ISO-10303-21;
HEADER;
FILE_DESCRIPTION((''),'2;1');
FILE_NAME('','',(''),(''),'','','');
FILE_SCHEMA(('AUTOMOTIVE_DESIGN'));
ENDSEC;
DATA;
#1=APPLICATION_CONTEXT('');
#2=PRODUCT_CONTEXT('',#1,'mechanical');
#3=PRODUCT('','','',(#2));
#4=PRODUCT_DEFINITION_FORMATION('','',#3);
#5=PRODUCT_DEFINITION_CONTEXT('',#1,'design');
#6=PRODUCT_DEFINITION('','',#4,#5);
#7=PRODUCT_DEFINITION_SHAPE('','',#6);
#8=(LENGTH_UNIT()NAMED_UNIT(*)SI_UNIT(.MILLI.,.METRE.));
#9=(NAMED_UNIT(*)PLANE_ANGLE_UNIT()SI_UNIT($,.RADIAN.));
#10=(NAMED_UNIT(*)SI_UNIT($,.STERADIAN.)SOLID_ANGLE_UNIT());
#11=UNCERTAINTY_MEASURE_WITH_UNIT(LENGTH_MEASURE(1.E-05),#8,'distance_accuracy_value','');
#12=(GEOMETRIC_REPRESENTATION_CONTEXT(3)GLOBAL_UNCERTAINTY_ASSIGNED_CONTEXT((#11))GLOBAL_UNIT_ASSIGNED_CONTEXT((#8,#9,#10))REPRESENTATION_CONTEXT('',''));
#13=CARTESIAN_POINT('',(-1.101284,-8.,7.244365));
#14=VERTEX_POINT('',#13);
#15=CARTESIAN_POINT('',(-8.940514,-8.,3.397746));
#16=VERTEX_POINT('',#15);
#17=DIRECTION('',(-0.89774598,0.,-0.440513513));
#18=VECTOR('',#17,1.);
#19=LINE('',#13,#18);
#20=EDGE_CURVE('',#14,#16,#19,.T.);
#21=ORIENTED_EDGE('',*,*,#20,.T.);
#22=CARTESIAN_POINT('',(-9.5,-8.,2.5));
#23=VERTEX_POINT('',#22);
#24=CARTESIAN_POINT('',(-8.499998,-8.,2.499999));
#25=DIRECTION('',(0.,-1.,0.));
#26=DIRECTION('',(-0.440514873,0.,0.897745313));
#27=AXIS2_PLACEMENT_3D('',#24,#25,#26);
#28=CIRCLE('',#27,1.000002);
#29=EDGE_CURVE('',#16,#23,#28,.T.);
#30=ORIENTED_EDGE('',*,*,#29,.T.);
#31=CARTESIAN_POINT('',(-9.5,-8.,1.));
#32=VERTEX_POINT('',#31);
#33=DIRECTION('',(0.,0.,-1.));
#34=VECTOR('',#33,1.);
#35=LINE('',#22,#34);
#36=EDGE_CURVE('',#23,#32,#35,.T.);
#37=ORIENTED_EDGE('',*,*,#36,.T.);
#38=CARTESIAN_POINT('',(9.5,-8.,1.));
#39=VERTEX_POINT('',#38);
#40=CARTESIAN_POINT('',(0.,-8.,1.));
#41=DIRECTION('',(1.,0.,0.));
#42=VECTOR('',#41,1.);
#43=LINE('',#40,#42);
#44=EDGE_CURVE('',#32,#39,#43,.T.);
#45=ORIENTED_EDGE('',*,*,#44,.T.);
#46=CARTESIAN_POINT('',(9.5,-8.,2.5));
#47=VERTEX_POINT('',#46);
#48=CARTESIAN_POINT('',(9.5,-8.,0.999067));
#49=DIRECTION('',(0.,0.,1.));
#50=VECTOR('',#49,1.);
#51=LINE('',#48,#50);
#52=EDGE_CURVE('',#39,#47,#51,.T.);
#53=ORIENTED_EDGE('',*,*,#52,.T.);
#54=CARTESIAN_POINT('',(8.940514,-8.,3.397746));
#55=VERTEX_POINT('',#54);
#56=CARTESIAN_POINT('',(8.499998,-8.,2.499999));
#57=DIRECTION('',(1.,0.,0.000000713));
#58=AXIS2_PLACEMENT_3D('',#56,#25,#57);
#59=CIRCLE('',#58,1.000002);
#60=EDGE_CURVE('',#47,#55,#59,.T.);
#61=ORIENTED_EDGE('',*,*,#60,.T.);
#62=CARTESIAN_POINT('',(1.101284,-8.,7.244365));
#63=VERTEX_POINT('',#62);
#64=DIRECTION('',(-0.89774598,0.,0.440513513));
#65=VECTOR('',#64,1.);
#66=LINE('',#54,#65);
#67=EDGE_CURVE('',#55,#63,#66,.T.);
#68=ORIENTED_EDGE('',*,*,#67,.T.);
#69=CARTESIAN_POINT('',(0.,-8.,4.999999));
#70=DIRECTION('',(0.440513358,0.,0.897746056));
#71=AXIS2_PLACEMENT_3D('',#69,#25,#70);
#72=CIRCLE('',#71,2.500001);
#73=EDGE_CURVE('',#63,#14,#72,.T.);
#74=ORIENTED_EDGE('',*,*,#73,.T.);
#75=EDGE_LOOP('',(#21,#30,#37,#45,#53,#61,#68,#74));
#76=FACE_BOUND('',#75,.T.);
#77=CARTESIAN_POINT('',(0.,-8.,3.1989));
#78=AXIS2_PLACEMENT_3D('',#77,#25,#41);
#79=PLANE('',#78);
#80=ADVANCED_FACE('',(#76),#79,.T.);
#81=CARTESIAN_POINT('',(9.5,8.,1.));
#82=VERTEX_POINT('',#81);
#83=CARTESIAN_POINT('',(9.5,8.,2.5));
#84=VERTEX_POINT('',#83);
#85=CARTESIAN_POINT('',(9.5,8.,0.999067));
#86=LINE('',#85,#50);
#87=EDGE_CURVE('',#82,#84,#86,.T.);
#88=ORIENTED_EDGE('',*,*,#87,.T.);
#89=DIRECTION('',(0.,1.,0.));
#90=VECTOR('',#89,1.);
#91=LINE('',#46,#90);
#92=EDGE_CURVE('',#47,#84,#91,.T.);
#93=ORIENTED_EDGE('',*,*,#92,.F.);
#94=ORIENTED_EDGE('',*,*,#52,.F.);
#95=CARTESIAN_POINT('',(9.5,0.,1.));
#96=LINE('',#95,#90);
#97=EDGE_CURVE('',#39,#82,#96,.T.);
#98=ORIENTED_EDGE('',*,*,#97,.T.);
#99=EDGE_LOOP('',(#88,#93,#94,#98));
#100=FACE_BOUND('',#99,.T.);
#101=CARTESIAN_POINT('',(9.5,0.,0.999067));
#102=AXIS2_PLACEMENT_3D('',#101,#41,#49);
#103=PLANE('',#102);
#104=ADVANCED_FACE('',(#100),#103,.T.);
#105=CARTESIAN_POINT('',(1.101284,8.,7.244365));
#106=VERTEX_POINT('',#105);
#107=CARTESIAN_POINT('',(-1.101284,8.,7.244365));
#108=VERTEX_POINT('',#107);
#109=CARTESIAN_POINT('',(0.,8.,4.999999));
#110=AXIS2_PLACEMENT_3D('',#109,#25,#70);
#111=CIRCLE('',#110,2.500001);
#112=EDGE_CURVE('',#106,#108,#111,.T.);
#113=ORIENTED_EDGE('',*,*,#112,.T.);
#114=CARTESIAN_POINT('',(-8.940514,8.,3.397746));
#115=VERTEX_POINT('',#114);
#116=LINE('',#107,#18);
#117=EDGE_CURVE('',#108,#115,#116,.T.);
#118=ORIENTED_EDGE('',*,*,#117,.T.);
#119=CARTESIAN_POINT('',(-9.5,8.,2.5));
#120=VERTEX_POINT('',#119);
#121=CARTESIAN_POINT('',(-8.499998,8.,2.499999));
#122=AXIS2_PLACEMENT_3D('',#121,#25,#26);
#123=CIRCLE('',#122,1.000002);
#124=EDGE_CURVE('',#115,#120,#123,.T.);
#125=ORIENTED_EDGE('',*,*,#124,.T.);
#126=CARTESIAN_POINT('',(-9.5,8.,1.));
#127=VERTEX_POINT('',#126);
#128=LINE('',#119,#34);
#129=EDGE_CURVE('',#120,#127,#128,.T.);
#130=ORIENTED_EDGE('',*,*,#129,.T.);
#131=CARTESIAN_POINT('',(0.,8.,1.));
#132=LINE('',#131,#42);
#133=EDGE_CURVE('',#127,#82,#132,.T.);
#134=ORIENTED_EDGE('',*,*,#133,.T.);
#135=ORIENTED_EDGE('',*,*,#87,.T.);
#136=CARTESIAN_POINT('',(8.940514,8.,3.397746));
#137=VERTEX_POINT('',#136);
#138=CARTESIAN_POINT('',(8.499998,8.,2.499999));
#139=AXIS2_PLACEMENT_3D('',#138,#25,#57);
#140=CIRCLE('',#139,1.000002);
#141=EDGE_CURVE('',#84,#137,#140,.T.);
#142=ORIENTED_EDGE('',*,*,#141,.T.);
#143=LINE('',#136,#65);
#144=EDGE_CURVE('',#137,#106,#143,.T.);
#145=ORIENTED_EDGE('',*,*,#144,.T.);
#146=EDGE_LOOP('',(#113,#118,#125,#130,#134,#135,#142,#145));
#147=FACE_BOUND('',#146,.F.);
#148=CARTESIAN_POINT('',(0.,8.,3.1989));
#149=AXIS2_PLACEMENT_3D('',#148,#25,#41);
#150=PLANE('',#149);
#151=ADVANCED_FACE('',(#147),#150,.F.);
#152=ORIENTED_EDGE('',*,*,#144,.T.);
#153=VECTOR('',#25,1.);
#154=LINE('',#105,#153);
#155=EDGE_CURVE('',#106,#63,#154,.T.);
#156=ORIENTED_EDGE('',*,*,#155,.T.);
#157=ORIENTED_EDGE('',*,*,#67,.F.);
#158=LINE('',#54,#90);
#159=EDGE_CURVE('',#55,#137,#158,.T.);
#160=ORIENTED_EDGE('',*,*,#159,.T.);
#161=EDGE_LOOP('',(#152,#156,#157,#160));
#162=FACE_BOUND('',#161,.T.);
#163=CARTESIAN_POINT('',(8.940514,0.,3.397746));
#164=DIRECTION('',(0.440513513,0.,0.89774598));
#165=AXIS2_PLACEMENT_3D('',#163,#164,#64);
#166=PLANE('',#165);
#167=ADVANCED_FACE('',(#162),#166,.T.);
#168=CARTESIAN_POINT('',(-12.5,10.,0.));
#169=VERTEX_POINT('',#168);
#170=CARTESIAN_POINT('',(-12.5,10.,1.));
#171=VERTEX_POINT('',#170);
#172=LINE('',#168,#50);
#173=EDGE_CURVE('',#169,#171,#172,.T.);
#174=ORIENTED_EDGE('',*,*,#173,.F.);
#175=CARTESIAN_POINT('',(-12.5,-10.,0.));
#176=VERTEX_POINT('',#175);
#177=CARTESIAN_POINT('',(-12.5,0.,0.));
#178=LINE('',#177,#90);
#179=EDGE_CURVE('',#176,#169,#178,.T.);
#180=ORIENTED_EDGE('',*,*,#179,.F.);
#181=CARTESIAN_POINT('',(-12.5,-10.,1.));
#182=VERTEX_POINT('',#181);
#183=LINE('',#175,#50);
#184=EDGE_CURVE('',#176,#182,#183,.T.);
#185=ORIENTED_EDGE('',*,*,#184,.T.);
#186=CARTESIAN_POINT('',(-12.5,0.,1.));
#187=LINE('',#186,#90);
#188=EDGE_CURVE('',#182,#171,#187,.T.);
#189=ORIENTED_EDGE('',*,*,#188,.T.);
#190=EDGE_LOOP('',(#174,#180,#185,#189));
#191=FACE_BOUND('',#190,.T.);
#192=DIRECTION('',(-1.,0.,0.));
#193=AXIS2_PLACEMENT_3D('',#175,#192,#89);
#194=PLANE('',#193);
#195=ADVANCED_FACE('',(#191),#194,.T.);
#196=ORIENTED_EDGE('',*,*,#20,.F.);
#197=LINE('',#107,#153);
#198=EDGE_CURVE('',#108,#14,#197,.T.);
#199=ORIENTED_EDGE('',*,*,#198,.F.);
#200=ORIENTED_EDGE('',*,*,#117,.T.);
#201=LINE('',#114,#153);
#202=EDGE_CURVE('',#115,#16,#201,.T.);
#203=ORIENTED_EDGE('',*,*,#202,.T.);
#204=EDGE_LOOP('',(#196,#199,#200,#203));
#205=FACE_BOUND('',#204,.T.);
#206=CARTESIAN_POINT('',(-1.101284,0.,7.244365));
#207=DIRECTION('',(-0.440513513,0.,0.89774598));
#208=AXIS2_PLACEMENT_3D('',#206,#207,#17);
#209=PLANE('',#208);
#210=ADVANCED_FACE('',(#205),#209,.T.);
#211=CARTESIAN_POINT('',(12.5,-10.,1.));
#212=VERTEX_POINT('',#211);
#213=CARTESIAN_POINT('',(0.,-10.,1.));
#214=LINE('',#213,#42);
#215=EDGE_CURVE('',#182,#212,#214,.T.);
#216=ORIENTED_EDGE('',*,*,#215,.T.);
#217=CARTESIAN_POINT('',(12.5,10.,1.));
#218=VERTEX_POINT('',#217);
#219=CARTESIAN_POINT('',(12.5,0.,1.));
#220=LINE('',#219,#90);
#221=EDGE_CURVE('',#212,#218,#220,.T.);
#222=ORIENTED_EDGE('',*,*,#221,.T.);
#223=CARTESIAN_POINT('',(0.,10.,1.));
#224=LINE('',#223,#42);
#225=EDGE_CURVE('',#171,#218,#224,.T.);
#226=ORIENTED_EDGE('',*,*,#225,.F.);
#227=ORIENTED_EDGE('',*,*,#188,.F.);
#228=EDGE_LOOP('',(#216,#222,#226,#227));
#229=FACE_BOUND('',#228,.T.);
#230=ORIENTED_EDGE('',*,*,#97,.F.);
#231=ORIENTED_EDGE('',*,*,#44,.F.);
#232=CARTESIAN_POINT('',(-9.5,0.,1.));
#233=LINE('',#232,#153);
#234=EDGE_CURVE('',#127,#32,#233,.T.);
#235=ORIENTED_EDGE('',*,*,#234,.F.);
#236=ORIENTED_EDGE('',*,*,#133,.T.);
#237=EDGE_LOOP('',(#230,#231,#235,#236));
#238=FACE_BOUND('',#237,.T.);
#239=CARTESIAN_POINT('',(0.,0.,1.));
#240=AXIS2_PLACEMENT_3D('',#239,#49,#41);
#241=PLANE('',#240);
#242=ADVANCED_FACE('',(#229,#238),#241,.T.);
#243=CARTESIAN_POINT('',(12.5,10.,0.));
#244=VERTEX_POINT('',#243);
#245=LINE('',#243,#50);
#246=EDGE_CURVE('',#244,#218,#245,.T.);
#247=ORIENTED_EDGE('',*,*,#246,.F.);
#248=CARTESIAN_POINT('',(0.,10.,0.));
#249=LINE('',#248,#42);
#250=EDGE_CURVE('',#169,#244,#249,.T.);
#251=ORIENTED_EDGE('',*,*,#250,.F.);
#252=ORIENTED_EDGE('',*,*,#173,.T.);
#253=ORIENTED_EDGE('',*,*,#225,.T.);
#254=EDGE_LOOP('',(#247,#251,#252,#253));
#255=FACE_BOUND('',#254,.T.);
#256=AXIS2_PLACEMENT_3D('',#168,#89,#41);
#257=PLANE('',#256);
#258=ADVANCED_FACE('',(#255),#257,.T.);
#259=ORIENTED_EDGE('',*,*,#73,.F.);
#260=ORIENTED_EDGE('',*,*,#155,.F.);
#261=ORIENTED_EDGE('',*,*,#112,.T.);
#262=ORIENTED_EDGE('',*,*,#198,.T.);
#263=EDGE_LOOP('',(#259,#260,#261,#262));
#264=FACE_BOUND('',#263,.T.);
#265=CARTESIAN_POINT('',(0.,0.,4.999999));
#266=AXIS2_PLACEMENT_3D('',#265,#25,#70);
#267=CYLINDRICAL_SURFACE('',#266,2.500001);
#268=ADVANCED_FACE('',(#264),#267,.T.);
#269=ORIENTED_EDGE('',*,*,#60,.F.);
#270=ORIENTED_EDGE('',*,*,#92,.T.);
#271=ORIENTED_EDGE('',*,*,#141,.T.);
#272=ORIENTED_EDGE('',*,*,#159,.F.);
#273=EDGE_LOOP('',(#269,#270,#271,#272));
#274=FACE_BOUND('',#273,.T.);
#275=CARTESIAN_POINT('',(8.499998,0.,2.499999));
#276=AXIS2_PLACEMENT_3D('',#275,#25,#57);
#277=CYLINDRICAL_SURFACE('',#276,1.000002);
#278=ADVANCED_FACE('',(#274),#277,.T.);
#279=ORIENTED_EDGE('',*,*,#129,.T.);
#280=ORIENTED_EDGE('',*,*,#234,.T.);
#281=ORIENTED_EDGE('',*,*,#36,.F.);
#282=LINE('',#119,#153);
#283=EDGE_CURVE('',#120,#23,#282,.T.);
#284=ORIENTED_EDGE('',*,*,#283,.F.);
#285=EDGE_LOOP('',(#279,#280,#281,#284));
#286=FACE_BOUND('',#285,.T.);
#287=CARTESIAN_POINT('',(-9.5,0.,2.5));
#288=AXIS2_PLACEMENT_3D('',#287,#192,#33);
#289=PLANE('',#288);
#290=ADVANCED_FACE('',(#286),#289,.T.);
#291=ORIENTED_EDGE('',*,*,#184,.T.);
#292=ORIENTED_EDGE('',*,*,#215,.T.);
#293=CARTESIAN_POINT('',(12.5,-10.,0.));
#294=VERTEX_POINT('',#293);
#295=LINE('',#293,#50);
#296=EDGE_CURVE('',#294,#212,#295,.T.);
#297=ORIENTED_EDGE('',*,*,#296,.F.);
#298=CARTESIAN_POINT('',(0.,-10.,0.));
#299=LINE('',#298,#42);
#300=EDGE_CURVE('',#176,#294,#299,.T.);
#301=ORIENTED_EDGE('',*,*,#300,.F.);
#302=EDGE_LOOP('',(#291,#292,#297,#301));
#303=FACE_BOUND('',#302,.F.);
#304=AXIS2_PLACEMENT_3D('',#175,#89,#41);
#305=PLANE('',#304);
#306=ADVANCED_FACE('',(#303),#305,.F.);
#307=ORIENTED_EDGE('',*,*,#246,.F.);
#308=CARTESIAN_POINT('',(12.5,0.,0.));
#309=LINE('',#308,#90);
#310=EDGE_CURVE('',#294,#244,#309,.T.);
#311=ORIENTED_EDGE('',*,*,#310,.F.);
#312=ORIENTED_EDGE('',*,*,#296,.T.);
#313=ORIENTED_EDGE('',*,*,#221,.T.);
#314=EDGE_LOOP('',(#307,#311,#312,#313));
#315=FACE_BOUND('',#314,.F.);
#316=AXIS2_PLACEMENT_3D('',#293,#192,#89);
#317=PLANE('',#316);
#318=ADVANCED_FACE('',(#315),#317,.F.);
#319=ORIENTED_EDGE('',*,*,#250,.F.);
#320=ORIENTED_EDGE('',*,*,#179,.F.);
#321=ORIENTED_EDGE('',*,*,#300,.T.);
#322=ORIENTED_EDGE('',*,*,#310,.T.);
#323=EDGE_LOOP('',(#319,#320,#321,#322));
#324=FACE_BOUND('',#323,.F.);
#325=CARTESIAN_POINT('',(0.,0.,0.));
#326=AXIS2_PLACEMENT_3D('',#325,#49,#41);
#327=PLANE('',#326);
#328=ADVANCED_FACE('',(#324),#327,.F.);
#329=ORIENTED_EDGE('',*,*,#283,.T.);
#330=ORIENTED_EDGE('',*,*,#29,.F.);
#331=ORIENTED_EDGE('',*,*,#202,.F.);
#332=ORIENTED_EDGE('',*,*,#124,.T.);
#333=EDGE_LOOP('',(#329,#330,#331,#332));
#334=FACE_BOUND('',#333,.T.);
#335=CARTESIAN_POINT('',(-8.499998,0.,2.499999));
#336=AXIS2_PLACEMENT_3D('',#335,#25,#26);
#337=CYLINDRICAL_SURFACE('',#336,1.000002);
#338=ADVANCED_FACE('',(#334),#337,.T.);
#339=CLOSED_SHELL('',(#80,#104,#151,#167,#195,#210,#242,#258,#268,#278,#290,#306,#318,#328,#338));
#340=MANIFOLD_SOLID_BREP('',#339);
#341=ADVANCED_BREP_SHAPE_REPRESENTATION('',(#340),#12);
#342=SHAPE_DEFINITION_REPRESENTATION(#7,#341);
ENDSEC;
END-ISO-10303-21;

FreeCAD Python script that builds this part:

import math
import FreeCAD as App
import Part
import Sketcher
from FreeCAD import Vector

doc = App.newDocument("Part")
body = doc.addObject("PartDesign::Body", "Body")

sketch1 = body.newObject("Sketcher::SketchObject", "Sketch")
sketch1.AttachmentSupport = (doc.getObject("XY_Plane"), [""])
sketch1.MapMode = "FlatFace"
sketch1.addGeometry(Part.LineSegment(Vector(-12.5, 10, 0), Vector(-12.5, -10, 0)), False)
sketch1.addGeometry(Part.LineSegment(Vector(-12.5, -10, 0), Vector(12.5, -10, 0)), False)
sketch1.addGeometry(Part.LineSegment(Vector(12.5, -10, 0), Vector(12.5, 10, 0)), False)
sketch1.addGeometry(Part.LineSegment(Vector(12.5, 10, 0), Vector(-12.5, 10, 0)), False)
sketch1.addConstraint(Sketcher.Constraint("Coincident", 0, 2, 1, 1))
sketch1.addConstraint(Sketcher.Constraint("Coincident", 1, 2, 2, 1))
sketch1.addConstraint(Sketcher.Constraint("Coincident", 2, 2, 3, 1))
sketch1.addConstraint(Sketcher.Constraint("Coincident", 3, 2, 0, 1))
sketch1.addConstraint(Sketcher.Constraint("Vertical", 0))
sketch1.addConstraint(Sketcher.Constraint("Horizontal", 1))
sketch1.addConstraint(Sketcher.Constraint("Vertical", 2))
sketch1.addConstraint(Sketcher.Constraint("Horizontal", 3))
sketch1.addConstraint(Sketcher.Constraint("Symmetric", 0, 2, 2, 2, -1, 1))
sketch1.addConstraint(Sketcher.Constraint("DistanceX", 1, 1, 1, 2, 25.0))
sketch1.addConstraint(Sketcher.Constraint("DistanceY", 0, 2, 0, 1, 20.0))
pad1 = body.newObject("PartDesign::Pad", "Pad")
pad1.Profile = sketch1
pad1.Length = 1

sketch2 = body.newObject("Sketcher::SketchObject", "Sketch001")
sketch2.AttachmentSupport = (doc.getObject("XZ_Plane"), [""])
sketch2.MapMode = "FlatFace"
sketch2.addGeometry(Part.LineSegment(Vector(8.940514, 3.397746, 0), Vector(1.101284, 7.244365, 0)), False)
sketch2.addGeometry(Part.ArcOfCircle(Part.Circle(Vector(0, 4.999999, 0), Vector(0, 0, 1), 2.500001), math.radians(63.86336), math.radians(116.13664)), False)
sketch2.addGeometry(Part.LineSegment(Vector(-1.101284, 7.244365, 0), Vector(-8.940514, 3.397746, 0)), False)
sketch2.addGeometry(Part.ArcOfCircle(Part.Circle(Vector(-8.499998, 2.499999, 0), Vector(0, 0, 1), 1.000002), math.radians(116.136737), math.radians(179.999959)), False)
sketch2.addGeometry(Part.LineSegment(Vector(-9.5, 2.5, 0), Vector(-9.5, 0.999067, 0)), False)
sketch2.addGeometry(Part.LineSegment(Vector(-9.5, 0.999067, 0), Vector(9.5, 0.999067, 0)), False)
sketch2.addGeometry(Part.LineSegment(Vector(9.5, 0.999067, 0), Vector(9.5, 2.5, 0)), False)
sketch2.addGeometry(Part.ArcOfCircle(Part.Circle(Vector(8.499998, 2.499999, 0), Vector(0, 0, 1), 1.000002), math.radians(0.000041), math.radians(63.863263)), False)
sketch2.addConstraint(Sketcher.Constraint("Tangent", 0, 2, 1, 1))
sketch2.addConstraint(Sketcher.Constraint("Tangent", 1, 2, 2, 1))
sketch2.addConstraint(Sketcher.Constraint("Tangent", 2, 2, 3, 1))
sketch2.addConstraint(Sketcher.Constraint("Tangent", 3, 2, 4, 1))
sketch2.addConstraint(Sketcher.Constraint("Coincident", 4, 2, 5, 1))
sketch2.addConstraint(Sketcher.Constraint("Coincident", 5, 2, 6, 1))
sketch2.addConstraint(Sketcher.Constraint("Tangent", 6, 2, 7, 1))
sketch2.addConstraint(Sketcher.Constraint("Tangent", 7, 2, 0, 1))
sketch2.addConstraint(Sketcher.Constraint("Vertical", 4))
sketch2.addConstraint(Sketcher.Constraint("Horizontal", 5))
sketch2.addConstraint(Sketcher.Constraint("Vertical", 6))
sketch2.addConstraint(Sketcher.Constraint("Equal", 3, 7))
sketch2.addConstraint(Sketcher.Constraint("Symmetric", 3, 3, 7, 3, -2))
sketch2.addConstraint(Sketcher.Constraint("PointOnObject", 1, 3, -2))
sketch2.addConstraint(Sketcher.Constraint("Radius", 3, 1.000002))
sketch2.addConstraint(Sketcher.Constraint("Radius", 1, 2.500001))
sketch2.addConstraint(Sketcher.Constraint("DistanceX", 5, 1, 5, 2, 19.0))
sketch2.addConstraint(Sketcher.Constraint("DistanceY", -1, 1, 1, 3, 4.999999))
sketch2.addConstraint(Sketcher.Constraint("DistanceY", -1, 1, 3, 3, 2.499999))
sketch2.addConstraint(Sketcher.Constraint("DistanceY", 4, 2, 1, 2, 6.245298))
pad2 = body.newObject("PartDesign::Pad", "Pad001")
pad2.Profile = sketch2
pad2.Length = 16
pad2.Midplane = True

doc.recompute()
